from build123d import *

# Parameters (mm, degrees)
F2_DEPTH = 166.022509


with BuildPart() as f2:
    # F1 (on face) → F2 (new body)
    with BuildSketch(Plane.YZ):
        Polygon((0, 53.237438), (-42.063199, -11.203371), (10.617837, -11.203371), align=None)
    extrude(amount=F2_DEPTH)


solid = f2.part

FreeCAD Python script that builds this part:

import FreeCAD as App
import Part
import Sketcher

V = App.Vector


def add_polygon(sketch, points):
    """Adds a closed chain of lines whose ends are joined by coincident constraints."""
    first, n = sketch.GeometryCount, len(points)
    for a, b in zip(points, points[1:] + points[:1]):
        sketch.addGeometry(Part.LineSegment(App.Vector(*a, 0), App.Vector(*b, 0)), False)
    for i in range(n):
        sketch.addConstraint(Sketcher.Constraint("Coincident", first + i, 2, first + (i + 1) % n, 1))

doc = App.newDocument("Part")
body = doc.addObject("PartDesign::Body", "Body")

# Sketch on YZ plane
sketch1 = body.newObject("Sketcher::SketchObject", "Sketch")
sketch1.AttachmentSupport = (doc.getObject("YZ_Plane"), [""])
sketch1.MapMode = "FlatFace"
add_polygon(sketch1, [(0, 53), (-42, -11), (11, -11)])  # lines 0-2
sketch1.addConstraint(Sketcher.Constraint("Horizontal", 1))
sketch1.addConstraint(Sketcher.Constraint("PointOnObject", 2, 2, -2))
sketch1.addConstraint(Sketcher.Constraint("DistanceX", 0, 2, -1, 1, 42.063199))
sketch1.addConstraint(Sketcher.Constraint("Distance", 0, 76.954081))
sketch1.addConstraint(Sketcher.Constraint("DistanceX", 1, 1, 1, 2, 52.681036))
sketch1.addConstraint(Sketcher.Constraint("DistanceY", 0, 2, -1, 1, 11.203371))
pad1 = body.newObject("PartDesign::Pad", "Pad")
pad1.Profile = sketch1
pad1.Length = 166.022509

doc.recompute()
